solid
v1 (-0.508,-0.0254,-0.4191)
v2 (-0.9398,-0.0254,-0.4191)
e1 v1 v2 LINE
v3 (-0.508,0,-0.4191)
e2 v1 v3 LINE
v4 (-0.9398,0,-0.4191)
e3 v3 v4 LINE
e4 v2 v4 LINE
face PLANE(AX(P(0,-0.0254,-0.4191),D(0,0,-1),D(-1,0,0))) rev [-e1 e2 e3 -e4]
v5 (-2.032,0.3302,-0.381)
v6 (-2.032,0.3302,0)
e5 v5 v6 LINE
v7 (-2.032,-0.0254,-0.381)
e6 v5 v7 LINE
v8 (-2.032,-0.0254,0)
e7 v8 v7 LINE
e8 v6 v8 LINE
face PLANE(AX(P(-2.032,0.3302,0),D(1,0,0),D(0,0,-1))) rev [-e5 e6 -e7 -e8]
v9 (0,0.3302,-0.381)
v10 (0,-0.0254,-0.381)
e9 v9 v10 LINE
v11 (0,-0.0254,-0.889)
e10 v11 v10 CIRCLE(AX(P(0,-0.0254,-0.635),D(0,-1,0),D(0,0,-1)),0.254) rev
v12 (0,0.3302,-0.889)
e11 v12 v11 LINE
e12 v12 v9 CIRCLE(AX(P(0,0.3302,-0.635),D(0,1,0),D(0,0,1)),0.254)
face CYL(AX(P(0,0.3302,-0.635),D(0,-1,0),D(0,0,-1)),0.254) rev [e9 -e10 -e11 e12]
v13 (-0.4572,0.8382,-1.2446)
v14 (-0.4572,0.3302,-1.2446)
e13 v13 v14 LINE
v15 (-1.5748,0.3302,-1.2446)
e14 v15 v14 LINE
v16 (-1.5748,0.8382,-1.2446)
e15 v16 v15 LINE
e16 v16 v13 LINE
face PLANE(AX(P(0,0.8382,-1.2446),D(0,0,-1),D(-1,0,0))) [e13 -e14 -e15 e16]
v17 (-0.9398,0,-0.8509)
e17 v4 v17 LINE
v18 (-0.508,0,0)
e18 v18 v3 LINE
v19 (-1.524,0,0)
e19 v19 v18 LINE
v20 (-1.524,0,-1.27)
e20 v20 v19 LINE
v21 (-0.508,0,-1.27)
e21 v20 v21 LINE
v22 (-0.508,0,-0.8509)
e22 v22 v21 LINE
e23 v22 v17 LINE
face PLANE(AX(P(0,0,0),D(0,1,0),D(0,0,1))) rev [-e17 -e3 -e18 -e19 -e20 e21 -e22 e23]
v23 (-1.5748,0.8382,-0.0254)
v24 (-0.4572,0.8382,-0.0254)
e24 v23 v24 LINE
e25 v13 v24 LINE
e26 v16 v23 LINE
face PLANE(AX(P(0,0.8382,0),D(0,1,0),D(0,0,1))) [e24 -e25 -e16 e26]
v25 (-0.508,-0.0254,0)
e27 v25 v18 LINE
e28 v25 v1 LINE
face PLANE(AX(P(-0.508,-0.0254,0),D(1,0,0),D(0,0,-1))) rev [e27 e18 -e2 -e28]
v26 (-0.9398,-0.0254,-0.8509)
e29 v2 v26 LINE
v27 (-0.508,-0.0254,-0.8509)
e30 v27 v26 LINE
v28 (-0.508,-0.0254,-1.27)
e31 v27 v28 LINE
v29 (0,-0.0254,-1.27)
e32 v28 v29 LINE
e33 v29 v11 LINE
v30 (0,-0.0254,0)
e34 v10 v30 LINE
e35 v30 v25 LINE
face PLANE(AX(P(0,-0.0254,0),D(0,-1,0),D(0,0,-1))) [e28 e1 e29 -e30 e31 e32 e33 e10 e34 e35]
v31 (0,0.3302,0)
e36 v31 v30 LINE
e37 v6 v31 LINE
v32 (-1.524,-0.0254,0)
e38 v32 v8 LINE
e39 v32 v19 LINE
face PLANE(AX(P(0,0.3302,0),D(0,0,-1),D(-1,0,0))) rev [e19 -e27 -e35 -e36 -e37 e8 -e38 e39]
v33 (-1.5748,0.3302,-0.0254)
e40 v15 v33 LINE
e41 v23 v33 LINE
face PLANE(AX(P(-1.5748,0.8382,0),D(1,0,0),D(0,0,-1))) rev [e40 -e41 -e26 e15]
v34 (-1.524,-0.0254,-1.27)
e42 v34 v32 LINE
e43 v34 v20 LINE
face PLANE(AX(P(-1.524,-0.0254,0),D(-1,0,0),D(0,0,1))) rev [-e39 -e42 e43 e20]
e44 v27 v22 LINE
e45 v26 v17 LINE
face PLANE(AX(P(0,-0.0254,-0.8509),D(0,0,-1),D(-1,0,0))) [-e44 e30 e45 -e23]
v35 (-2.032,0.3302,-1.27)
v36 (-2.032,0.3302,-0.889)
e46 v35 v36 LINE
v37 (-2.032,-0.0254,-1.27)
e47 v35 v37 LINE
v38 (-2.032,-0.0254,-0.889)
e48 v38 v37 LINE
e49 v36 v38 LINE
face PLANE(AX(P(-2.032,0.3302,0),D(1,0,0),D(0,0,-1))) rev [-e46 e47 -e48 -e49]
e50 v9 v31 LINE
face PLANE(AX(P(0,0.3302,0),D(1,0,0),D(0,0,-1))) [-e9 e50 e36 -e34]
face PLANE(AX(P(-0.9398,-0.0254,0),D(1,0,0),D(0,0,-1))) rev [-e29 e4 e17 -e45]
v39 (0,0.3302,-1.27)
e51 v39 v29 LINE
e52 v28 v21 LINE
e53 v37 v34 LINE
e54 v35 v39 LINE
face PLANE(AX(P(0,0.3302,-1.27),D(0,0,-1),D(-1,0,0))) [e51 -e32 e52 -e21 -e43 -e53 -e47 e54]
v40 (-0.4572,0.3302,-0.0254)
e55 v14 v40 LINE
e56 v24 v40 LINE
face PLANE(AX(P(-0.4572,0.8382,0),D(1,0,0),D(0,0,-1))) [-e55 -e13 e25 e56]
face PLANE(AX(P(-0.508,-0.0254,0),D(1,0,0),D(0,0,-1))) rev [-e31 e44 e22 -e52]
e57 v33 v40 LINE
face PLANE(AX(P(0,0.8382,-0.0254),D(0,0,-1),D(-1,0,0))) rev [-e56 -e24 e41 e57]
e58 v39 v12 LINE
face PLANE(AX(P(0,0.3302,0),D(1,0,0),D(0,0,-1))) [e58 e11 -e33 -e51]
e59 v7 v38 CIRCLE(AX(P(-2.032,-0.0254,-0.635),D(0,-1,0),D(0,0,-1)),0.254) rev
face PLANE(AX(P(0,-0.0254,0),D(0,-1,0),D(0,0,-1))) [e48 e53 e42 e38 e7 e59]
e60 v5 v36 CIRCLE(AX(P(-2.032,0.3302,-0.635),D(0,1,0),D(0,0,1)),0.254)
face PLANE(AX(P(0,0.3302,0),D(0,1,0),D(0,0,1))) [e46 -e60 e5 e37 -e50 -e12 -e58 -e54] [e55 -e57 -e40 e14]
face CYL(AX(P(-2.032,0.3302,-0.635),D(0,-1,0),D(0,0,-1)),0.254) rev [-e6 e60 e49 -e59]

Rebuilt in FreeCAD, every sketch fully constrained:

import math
import FreeCAD as App
import Part
import Sketcher
Q = App.Units.Quantity


def add_polygon(sketch, points):
    """Adds a closed chain of lines whose ends are joined by coincident constraints."""
    first, n = sketch.GeometryCount, len(points)
    for a, b in zip(points, points[1:] + points[:1]):
        sketch.addGeometry(Part.LineSegment(App.Vector(*a, 0), App.Vector(*b, 0)), False)
    for i in range(n):
        sketch.addConstraint(Sketcher.Constraint("Coincident", first + i, 2, first + (i + 1) % n, 1))

doc = App.newDocument("Part")
params = doc.addObject("Spreadsheet::Sheet", "Params")
for row, (alias, value) in enumerate([
    ("sketch1_radius", "0.01 in"),
    ("sketch1_width", "0.08 in"),
    ("sketch1_height", "0.015 in"),
    ("pad1_length", "0.013 in"),
    ("sketch2_radius", "0.01 in"),
    ("sketch2_width", "0.02 in"),
    ("sketch2_height", "0.05 in"),
    ("sketch2_width2", "0.017 in"),
    ("pad2_length", "0.001 in"),
    ("sketch3_width", "0.044 in"),
    ("sketch3_height", "0.048 in"),
    ("pad3_length", "0.02 in"),
    ("sketch4_width", "0.013 in"),
    ("pad4_length", "0.013 in"),
], start=1):
    params.set(f"A{row}", alias)
    params.set(f"B{row}", "=" + value)
    params.setAlias(f"B{row}", alias)

body = doc.addObject("PartDesign::Body", "Body")

# Sketch on XZ plane
sketch1 = doc.addObject("Sketcher::SketchObject", "Sketch")
body.addObject(sketch1)
sketch1.AttachmentSupport = (doc.XZ_Plane, [""])
sketch1.MapMode = "FlatFace"
sketch1.addGeometry(Part.LineSegment(App.Vector(0, -1.27, 0), App.Vector(-2.032, -1.27, 0)), False)
sketch1.addGeometry(Part.LineSegment(App.Vector(-2.032, -1.27, 0), App.Vector(-2.032, -0.889, 0)), False)
sketch1.addGeometry(Part.ArcOfCircle(Part.Circle(App.Vector(-2.032, -0.635, 0), App.Vector(0, 0, 1), 0.254), math.radians(-90), math.radians(0)), False)
sketch1.addGeometry(Part.ArcOfCircle(Part.Circle(App.Vector(-2.032, -0.635, 0), App.Vector(0, 0, 1), 0.254), math.radians(0), math.radians(90)), False)
sketch1.addGeometry(Part.LineSegment(App.Vector(-2.032, -0.381, 0), App.Vector(-2.032, 0, 0)), False)
sketch1.addGeometry(Part.LineSegment(App.Vector(-2.032, 0, 0), App.Vector(0, 0, 0)), False)
sketch1.addGeometry(Part.LineSegment(App.Vector(0, 0, 0), App.Vector(0, -0.381, 0)), False)
sketch1.addGeometry(Part.ArcOfCircle(Part.Circle(App.Vector(0, -0.635, 0), App.Vector(0, 0, 1), 0.254), math.radians(90), math.radians(270)), False)
sketch1.addGeometry(Part.LineSegment(App.Vector(0, -0.889, 0), App.Vector(0, -1.27, 0)), False)
sketch1.addConstraint(Sketcher.Constraint("Coincident", 0, 2, 1, 1))
sketch1.addConstraint(Sketcher.Constraint("Coincident", 1, 2, 2, 1))
sketch1.addConstraint(Sketcher.Constraint("Tangent", 2, 2, 3, 1))
sketch1.addConstraint(Sketcher.Constraint("Coincident", 3, 2, 4, 1))
sketch1.addConstraint(Sketcher.Constraint("Coincident", 4, 2, 5, 1))
sketch1.addConstraint(Sketcher.Constraint("Coincident", 5, 2, 6, 1))
sketch1.addConstraint(Sketcher.Constraint("Coincident", 6, 2, 7, 1))
sketch1.addConstraint(Sketcher.Constraint("Coincident", 7, 2, 8, 1))
sketch1.addConstraint(Sketcher.Constraint("Coincident", 8, 2, 0, 1))
sketch1.addConstraint(Sketcher.Constraint("Horizontal", 0))
sketch1.addConstraint(Sketcher.Constraint("Vertical", 1))
sketch1.addConstraint(Sketcher.Constraint("Vertical", 4))
sketch1.addConstraint(Sketcher.Constraint("Horizontal", 5))
sketch1.addConstraint(Sketcher.Constraint("Vertical", 6))
sketch1.addConstraint(Sketcher.Constraint("Vertical", 8))
sketch1.addConstraint(Sketcher.Constraint("Coincident", 5, 2, -1, 1))
sketch1.addConstraint(Sketcher.Constraint("Equal", 2, 3))
sketch1.addConstraint(Sketcher.Constraint("Equal", 3, 7))
sketch1.addConstraint(Sketcher.Constraint("PointOnObject", 7, 3, -2))
sketch1.addConstraint(Sketcher.Constraint("PointOnObject", 7, 2, -2))
sketch1.addConstraint(Sketcher.Constraint("Horizontal", 3, 3, 7, 3))
sketch1.addConstraint(Sketcher.Constraint("Horizontal", 7, 3, 2, 2))
sketch1.addConstraint(Sketcher.Constraint("Vertical", 3, 3, 0, 2))
sketch1.addConstraint(Sketcher.Constraint("Vertical", 1, 2, 3, 2))
sketch1.addConstraint(Sketcher.Constraint("Equal", 1, 4))
sketch1.addConstraint(Sketcher.Constraint("Radius", 2, Q("0.01 in")))
sketch1.addConstraint(Sketcher.Constraint("DistanceX", 0, 2, 0, 1, Q("0.08 in")))
sketch1.addConstraint(Sketcher.Constraint("DistanceY", 1, 1, 1, 2, Q("0.015 in")))
sketch1.setExpression("Constraints[25]", "Params.sketch1_radius")
sketch1.setExpression("Constraints[26]", "Params.sketch1_width")
sketch1.setExpression("Constraints[27]", "Params.sketch1_height")
pad1 = doc.addObject("PartDesign::Pad", "Pad")
body.addObject(pad1)
pad1.Profile = sketch1
pad1.setExpression("Length", "Params.pad1_length")
pad1.Reversed = True

# Sketch on XZ plane
sketch2 = doc.addObject("Sketcher::SketchObject", "Sketch001")
body.addObject(sketch2)
sketch2.AttachmentSupport = (doc.XZ_Plane, [""])
sketch2.MapMode = "FlatFace"
sketch2.AttachmentOffset = App.Placement(App.Vector(0, 0, 0.001 * 25.4), App.Rotation())
sketch2.addGeometry(Part.LineSegment(App.Vector(-2.032, -1.27, 0), App.Vector(-1.524, -1.27, 0)), False)
sketch2.addGeometry(Part.LineSegment(App.Vector(-1.524, -1.27, 0), App.Vector(-1.524, 0, 0)), False)
sketch2.addGeometry(Part.LineSegment(App.Vector(-1.524, 0, 0), App.Vector(-2.032, 0, 0)), False)
sketch2.addGeometry(Part.LineSegment(App.Vector(-2.032, 0, 0), App.Vector(-2.032, -0.381, 0)), False)
sketch2.addGeometry(Part.ArcOfCircle(Part.Circle(App.Vector(-2.032, -0.635, 0), App.Vector(0, 0, 1), 0.254), math.radians(-90), math.radians(90)), False)
sketch2.addGeometry(Part.LineSegment(App.Vector(-2.032, -0.889, 0), App.Vector(-2.032, -1.27, 0)), False)
sketch2.addGeometry(Part.LineSegment(App.Vector(-0.9398, -0.4191, 0), App.Vector(-0.9398, -0.8509, 0)), False)
sketch2.addGeometry(Part.LineSegment(App.Vector(-0.9398, -0.8509, 0), App.Vector(-0.508, -0.8509, 0)), False)
sketch2.addGeometry(Part.LineSegment(App.Vector(-0.508, -0.8509, 0), App.Vector(-0.508, -1.27, 0)), False)
sketch2.addGeometry(Part.LineSegment(App.Vector(-0.508, -1.27, 0), App.Vector(0, -1.27, 0)), False)
sketch2.addGeometry(Part.LineSegment(App.Vector(0, -1.27, 0), App.Vector(0, -0.889, 0)), False)
sketch2.addGeometry(Part.ArcOfCircle(Part.Circle(App.Vector(0, -0.635, 0), App.Vector(0, 0, 1), 0.254), math.radians(90), math.radians(270)), False)
sketch2.addGeometry(Part.LineSegment(App.Vector(0, -0.381, 0), App.Vector(0, 0, 0)), False)
sketch2.addGeometry(Part.LineSegment(App.Vector(0, 0, 0), App.Vector(-0.508, 0, 0)), False)
sketch2.addGeometry(Part.LineSegment(App.Vector(-0.508, 0, 0), App.Vector(-0.508, -0.4191, 0)), False)
sketch2.addGeometry(Part.LineSegment(App.Vector(-0.508, -0.4191, 0), App.Vector(-0.9398, -0.4191, 0)), False)
sketch2.addConstraint(Sketcher.Constraint("Coincident", 0, 2, 1, 1))
sketch2.addConstraint(Sketcher.Constraint("Coincident", 1, 2, 2, 1))
sketch2.addConstraint(Sketcher.Constraint("Coincident", 2, 2, 3, 1))
sketch2.addConstraint(Sketcher.Constraint("Coincident", 3, 2, 4, 2))
sketch2.addConstraint(Sketcher.Constraint("Coincident", 4, 1, 5, 1))
sketch2.addConstraint(Sketcher.Constraint("Coincident", 5, 2, 0, 1))
sketch2.addConstraint(Sketcher.Constraint("Coincident", 6, 2, 7, 1))
sketch2.addConstraint(Sketcher.Constraint("Coincident", 7, 2, 8, 1))
sketch2.addConstraint(Sketcher.Constraint("Coincident", 8, 2, 9, 1))
sketch2.addConstraint(Sketcher.Constraint("Coincident", 9, 2, 10, 1))
sketch2.addConstraint(Sketcher.Constraint("Coincident", 10, 2, 11, 2))
sketch2.addConstraint(Sketcher.Constraint("Coincident", 11, 1, 12, 1))
sketch2.addConstraint(Sketcher.Constraint("Coincident", 12, 2, 13, 1))
sketch2.addConstraint(Sketcher.Constraint("Coincident", 13, 2, 14, 1))
sketch2.addConstraint(Sketcher.Constraint("Coincident", 14, 2, 15, 1))
sketch2.addConstraint(Sketcher.Constraint("Coincident", 15, 2, 6, 1))
sketch2.addConstraint(Sketcher.Constraint("Horizontal", 0))
sketch2.addConstraint(Sketcher.Constraint("Vertical", 1))
sketch2.addConstraint(Sketcher.Constraint("Horizontal", 2))
sketch2.addConstraint(Sketcher.Constraint("Vertical", 3))
sketch2.addConstraint(Sketcher.Constraint("Vertical", 5))
sketch2.addConstraint(Sketcher.Constraint("Vertical", 6))
sketch2.addConstraint(Sketcher.Constraint("Horizontal", 7))
sketch2.addConstraint(Sketcher.Constraint("Vertical", 8))
sketch2.addConstraint(Sketcher.Constraint("Horizontal", 9))
sketch2.addConstraint(Sketcher.Constraint("Vertical", 10))
sketch2.addConstraint(Sketcher.Constraint("Vertical", 12))
sketch2.addConstraint(Sketcher.Constraint("Horizontal", 13))
sketch2.addConstraint(Sketcher.Constraint("Vertical", 14))
sketch2.addConstraint(Sketcher.Constraint("Horizontal", 15))
sketch2.addConstraint(Sketcher.Constraint("Coincident", 12, 2, -1, 1))
sketch2.addConstraint(Sketcher.Constraint("Equal", 4, 11))
sketch2.addConstraint(Sketcher.Constraint("PointOnObject", 11, 3, -2))
sketch2.addConstraint(Sketcher.Constraint("PointOnObject", 1, 2, -1))
sketch2.addConstraint(Sketcher.Constraint("PointOnObject", 9, 2, -2))
sketch2.addConstraint(Sketcher.Constraint("Horizontal", 4, 3, 11, 3))
sketch2.addConstraint(Sketcher.Constraint("Horizontal", 5, 2, 8, 2))
sketch2.addConstraint(Sketcher.Constraint("Vertical", 4, 3, 2, 2))
sketch2.addConstraint(Sketcher.Constraint("Vertical", 3, 2, 4, 1))
sketch2.addConstraint(Sketcher.Constraint("Vertical", 8, 2, 13, 2))
sketch2.addConstraint(Sketcher.Constraint("Equal", 2, 9))
sketch2.addConstraint(Sketcher.Constraint("Equal", 3, 5))
sketch2.addConstraint(Sketcher.Constraint("Equal", 15, 6))
sketch2.addConstraint(Sketcher.Constraint("Equal", 8, 14))
sketch2.addConstraint(Sketcher.Constraint("Radius", 4, Q("0.01 in")))
sketch2.addConstraint(Sketcher.Constraint("DistanceX", 0, 1, 0, 2, Q("0.02 in")))
sketch2.addConstraint(Sketcher.Constraint("DistanceY", 1, 1, 1, 2, Q("0.05 in")))
sketch2.addConstraint(Sketcher.Constraint("DistanceX", 7, 1, 7, 2, Q("0.017 in")))
sketch2.addConstraint(Sketcher.Constraint("DistanceX", 4, 3, -1, 1, Q("0.08 in")))
sketch2.setExpression("Constraints[44]", "Params.sketch2_radius")
sketch2.setExpression("Constraints[45]", "Params.sketch2_width")
sketch2.setExpression("Constraints[46]", "Params.sketch2_height")
sketch2.setExpression("Constraints[47]", "Params.sketch2_width2")
pad2 = doc.addObject("PartDesign::Pad", "Pad001")
body.addObject(pad2)
pad2.Profile = sketch2
pad2.setExpression("Length", "Params.pad2_length")
pad2.Reversed = True

# Sketch on XZ plane
sketch3 = doc.addObject("Sketcher::SketchObject", "Sketch002")
body.addObject(sketch3)
sketch3.AttachmentSupport = (doc.XZ_Plane, [""])
sketch3.MapMode = "FlatFace"
sketch3.AttachmentOffset = App.Placement(App.Vector(0, 0, -0.013 * 25.4), App.Rotation())
add_polygon(sketch3, [(-1.5748, -1.2446), (-1.5748, -0.0254), (-0.4572, -0.0254), (-0.4572, -1.2446)])  # lines 0-3
sketch3.addConstraint(Sketcher.Constraint("Vertical", 0))
sketch3.addConstraint(Sketcher.Constraint("Horizontal", 1))
sketch3.addConstraint(Sketcher.Constraint("Vertical", 2))
sketch3.addConstraint(Sketcher.Constraint("Horizontal", 3))
sketch3.addConstraint(Sketcher.Constraint("DistanceX", 1, 1, 1, 2, Q("0.044 in")))
sketch3.addConstraint(Sketcher.Constraint("DistanceY", 0, 1, 0, 2, Q("0.048 in")))
sketch3.addConstraint(Sketcher.Constraint("DistanceX", 0, 2, -1, 1, Q("0.062 in")))
sketch3.addConstraint(Sketcher.Constraint("DistanceY", 0, 2, -1, 1, Q("0.001 in")))
sketch3.setExpression("Constraints[8]", "Params.sketch3_width")
sketch3.setExpression("Constraints[9]", "Params.sketch3_height")
pad3 = doc.addObject("PartDesign::Pad", "Pad002")
body.addObject(pad3)
pad3.Profile = sketch3
pad3.setExpression("Length", "Params.pad3_length")
pad3.Reversed = True

# Sketch on XZ plane
sketch4 = doc.addObject("Sketcher::SketchObject", "Sketch003")
body.addObject(sketch4)
sketch4.AttachmentSupport = (doc.XZ_Plane, [""])
sketch4.MapMode = "FlatFace"
sketch4.AttachmentOffset = App.Placement(App.Vector(0, 0, -0.013 * 25.4), App.Rotation())
add_polygon(sketch4, [(-0.9652, -0.8001), (-0.9652, -0.4699), (-0.635, -0.4699), (-0.635, -0.8001)])  # lines 0-3
sketch4.addConstraint(Sketcher.Constraint("Vertical", 0))
sketch4.addConstraint(Sketcher.Constraint("Horizontal", 1))
sketch4.addConstraint(Sketcher.Constraint("Vertical", 2))
sketch4.addConstraint(Sketcher.Constraint("Horizontal", 3))
sketch4.addConstraint(Sketcher.Constraint("Equal", 3, 0))
sketch4.addConstraint(Sketcher.Constraint("DistanceX", 1, 1, 1, 2, Q("0.013 in")))
sketch4.addConstraint(Sketcher.Constraint("DistanceX", 0, 2, -1, 1, Q("0.038 in")))
sketch4.addConstraint(Sketcher.Constraint("DistanceY", 0, 2, -1, 1, Q("0.0185 in")))
sketch4.setExpression("Constraints[9]", "Params.sketch4_width")
pad4 = doc.addObject("PartDesign::Pad", "Pad003")
body.addObject(pad4)
pad4.Profile = sketch4
pad4.setExpression("Length", "Params.pad4_length")
pad4.Reversed = True

doc.recompute()
